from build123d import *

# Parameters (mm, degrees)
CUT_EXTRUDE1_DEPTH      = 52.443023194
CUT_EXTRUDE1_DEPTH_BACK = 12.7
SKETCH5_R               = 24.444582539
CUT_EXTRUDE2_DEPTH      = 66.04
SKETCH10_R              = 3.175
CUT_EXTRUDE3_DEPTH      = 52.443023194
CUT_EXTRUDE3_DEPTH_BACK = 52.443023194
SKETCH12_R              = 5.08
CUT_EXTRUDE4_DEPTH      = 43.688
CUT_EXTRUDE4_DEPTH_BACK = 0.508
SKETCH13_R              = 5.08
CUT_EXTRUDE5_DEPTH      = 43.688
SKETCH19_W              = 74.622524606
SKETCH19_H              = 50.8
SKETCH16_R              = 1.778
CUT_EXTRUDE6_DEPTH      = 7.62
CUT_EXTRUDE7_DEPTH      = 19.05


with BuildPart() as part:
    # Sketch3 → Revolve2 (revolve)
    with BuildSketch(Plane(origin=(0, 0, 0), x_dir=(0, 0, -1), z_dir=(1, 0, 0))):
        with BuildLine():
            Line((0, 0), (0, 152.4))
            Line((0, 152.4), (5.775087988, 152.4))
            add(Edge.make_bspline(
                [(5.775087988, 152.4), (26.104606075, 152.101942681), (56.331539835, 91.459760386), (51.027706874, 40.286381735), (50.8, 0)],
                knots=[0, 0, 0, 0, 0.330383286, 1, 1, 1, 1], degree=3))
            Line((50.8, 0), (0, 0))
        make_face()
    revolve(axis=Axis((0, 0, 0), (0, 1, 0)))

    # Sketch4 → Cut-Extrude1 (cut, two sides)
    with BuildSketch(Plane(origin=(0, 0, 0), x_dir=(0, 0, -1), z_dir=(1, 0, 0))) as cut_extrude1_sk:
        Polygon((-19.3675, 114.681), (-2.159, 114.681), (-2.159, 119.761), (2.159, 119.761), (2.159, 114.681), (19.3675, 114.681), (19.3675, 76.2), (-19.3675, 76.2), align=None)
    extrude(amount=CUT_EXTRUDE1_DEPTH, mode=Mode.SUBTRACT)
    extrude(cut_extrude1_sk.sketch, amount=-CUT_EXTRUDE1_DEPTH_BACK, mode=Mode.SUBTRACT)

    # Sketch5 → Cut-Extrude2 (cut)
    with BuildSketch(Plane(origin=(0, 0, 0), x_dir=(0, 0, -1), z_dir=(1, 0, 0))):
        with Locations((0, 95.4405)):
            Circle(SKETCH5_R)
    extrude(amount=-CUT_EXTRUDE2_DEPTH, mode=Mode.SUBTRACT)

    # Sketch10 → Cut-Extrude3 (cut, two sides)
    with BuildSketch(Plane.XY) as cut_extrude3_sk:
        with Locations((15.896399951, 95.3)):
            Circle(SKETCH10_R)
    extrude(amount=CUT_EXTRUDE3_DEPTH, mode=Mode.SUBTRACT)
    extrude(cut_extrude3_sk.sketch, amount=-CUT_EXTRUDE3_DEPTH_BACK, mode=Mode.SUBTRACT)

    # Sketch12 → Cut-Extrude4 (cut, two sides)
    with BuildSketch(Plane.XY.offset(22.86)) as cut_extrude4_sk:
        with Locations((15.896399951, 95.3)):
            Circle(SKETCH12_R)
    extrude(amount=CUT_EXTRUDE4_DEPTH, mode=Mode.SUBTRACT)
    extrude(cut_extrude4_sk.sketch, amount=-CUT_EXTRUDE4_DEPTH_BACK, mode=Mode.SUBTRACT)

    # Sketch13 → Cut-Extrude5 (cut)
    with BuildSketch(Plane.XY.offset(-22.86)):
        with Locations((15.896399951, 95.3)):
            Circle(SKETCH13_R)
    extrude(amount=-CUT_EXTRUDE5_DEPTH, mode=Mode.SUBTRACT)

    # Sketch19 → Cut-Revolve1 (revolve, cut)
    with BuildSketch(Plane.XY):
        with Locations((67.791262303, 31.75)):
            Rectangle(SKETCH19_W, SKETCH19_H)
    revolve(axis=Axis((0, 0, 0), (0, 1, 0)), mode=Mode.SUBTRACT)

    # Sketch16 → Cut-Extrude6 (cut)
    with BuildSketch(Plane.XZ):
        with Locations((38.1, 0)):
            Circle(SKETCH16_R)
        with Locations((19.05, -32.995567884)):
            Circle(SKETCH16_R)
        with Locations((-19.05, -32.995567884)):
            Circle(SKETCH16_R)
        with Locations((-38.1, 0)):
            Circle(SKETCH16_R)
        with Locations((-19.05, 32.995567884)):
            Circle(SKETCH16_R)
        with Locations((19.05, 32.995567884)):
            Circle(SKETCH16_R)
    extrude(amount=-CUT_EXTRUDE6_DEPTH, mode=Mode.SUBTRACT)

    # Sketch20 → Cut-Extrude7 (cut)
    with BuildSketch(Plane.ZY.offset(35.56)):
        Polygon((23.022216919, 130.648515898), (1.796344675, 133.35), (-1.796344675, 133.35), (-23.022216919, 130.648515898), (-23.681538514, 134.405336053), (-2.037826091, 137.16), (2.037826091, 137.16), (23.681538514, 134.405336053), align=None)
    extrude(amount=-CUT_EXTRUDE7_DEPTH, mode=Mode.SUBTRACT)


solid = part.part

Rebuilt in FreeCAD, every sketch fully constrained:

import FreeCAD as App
import Part
import Sketcher

V = App.Vector
Q = App.Units.Quantity


def add_polygon(sketch, points):
    """Adds a closed chain of lines whose ends are joined by coincident constraints."""
    first, n = sketch.GeometryCount, len(points)
    for a, b in zip(points, points[1:] + points[:1]):
        sketch.addGeometry(Part.LineSegment(App.Vector(*a, 0), App.Vector(*b, 0)), False)
    for i in range(n):
        sketch.addConstraint(Sketcher.Constraint("Coincident", first + i, 2, first + (i + 1) % n, 1))

doc = App.newDocument("Part")
body = doc.addObject("PartDesign::Body", "Body")

# Sketch on YZ plane
sketch1 = body.newObject("Sketcher::SketchObject", "Sketch")
sketch1.AttachmentSupport = (doc.getObject("YZ_Plane"), [""])
sketch1.MapMode = "FlatFace"
sketch1.addGeometry([
    Part.LineSegment(V(152.4, 0, 0), V(0, 0, 0)),
    Part.LineSegment(V(0, 0, 0), V(0, -50.8, 0)),
    Part.BSplineCurve([V(152.4, -5.775088, 0), V(152.101943, -26.104606, 0), V(91.45976, -56.33154, 0), V(40.286382, -51.027707, 0), V(0, -50.8, 0)], [4, 1, 4], [0, 0.330383286, 1], False, 3, [1, 1, 1, 1, 1], False),
    Part.LineSegment(V(152.4, -5.775088, 0), V(152.4, 0, 0)),
], False)
sketch1.addConstraint([
    Sketcher.Constraint("Block", 2),
    Sketcher.Constraint("Coincident", 0, 2, 1, 1),
    Sketcher.Constraint("Coincident", 1, 2, 2, 2),
    Sketcher.Constraint("Coincident", 2, 1, 3, 1),
    Sketcher.Constraint("Coincident", 3, 2, 0, 1),
    Sketcher.Constraint("Horizontal", 0),
    Sketcher.Constraint("Vertical", 1),
    Sketcher.Constraint("Vertical", 3),
    Sketcher.Constraint("PointOnObject", 3, 2, -1),
])
revolution = body.newObject("PartDesign::Revolution", "Revolution")
revolution.Profile = sketch1
revolution.ReferenceAxis = (sketch1, ["H_Axis"])
revolution.Angle = 360

# Sketch on YZ plane
sketch2 = body.newObject("Sketcher::SketchObject", "Sketch001")
sketch2.AttachmentSupport = (doc.getObject("YZ_Plane"), [""])
sketch2.MapMode = "FlatFace"
add_polygon(sketch2, [(114.7, 2.2), (114.7, 19.4), (76.2, 19.4), (76.2, -19.4), (114.7, -19.4), (114.7, -2.2), (119.8, -2.2), (119.8, 2.2)])  # lines 0-7
sketch2.addConstraint([
    Sketcher.Constraint("Vertical", 0),
    Sketcher.Constraint("Horizontal", 1),
    Sketcher.Constraint("Vertical", 2),
    Sketcher.Constraint("Horizontal", 3),
    Sketcher.Constraint("Vertical", 4),
    Sketcher.Constraint("Horizontal", 5),
    Sketcher.Constraint("Vertical", 6),
    Sketcher.Constraint("Horizontal", 7),
    Sketcher.Constraint("Symmetric", 0, 2, 3, 2, -1),
    Sketcher.Constraint("Equal", 0, 4),
    Sketcher.Constraint("DistanceX", 5, 1, 5, 2, Q("0.2 in")),
    Sketcher.Constraint("DistanceX", -1, 1, 1, 2, Q("3 in")),
    Sketcher.Constraint("DistanceY", 6, 1, 6, 2, Q("0.17 in")),
    Sketcher.Constraint("DistanceX", 1, 2, 1, 1, Q("1.515 in")),
    Sketcher.Constraint("DistanceY", 2, 2, 2, 1, Q("1.525 in")),
])
pocket1 = body.newObject("PartDesign::Pocket", "Pocket")
pocket1.Profile = sketch2
pocket1.Type = "TwoLengths"
pocket1.Length = 52.443023
pocket1.Length2 = Q("0.5 in")
pocket1.Reversed = True

# Sketch on YZ plane
sketch3 = body.newObject("Sketcher::SketchObject", "Sketch002")
sketch3.AttachmentSupport = (doc.getObject("YZ_Plane"), [""])
sketch3.MapMode = "FlatFace"
sketch3.addGeometry(Part.Circle(V(95, 0, 0), V(0, 0, 1), 24), False)
sketch3.addConstraint([
    Sketcher.Constraint("PointOnObject", 0, 3, -1),
    Sketcher.Constraint("Diameter", 0, Q("48.889165 mm")),
    Sketcher.Constraint("DistanceX", -1, 1, 0, 3, Q("3.7575 in")),
])
pocket2 = body.newObject("PartDesign::Pocket", "Pocket001")
pocket2.Profile = sketch3
pocket2.Length = Q("2.6 in")

# Sketch on XY plane
sketch4 = body.newObject("Sketcher::SketchObject", "Sketch003")
sketch4.AttachmentSupport = (doc.getObject("XY_Plane"), [""])
sketch4.MapMode = "FlatFace"
sketch4.addGeometry(Part.Circle(V(15.9, 95.3, 0), V(0, 0, 1), 3.2), False)
sketch4.addConstraint([
    Sketcher.Constraint("Diameter", 0, Q("0.25 in")),
    Sketcher.Constraint("DistanceX", -1, 1, 0, 3, Q("15.8964 mm")),
    Sketcher.Constraint("DistanceY", -1, 1, 0, 3, Q("95.3 mm")),
])
pocket3 = body.newObject("PartDesign::Pocket", "Pocket002")
pocket3.Profile = sketch4
pocket3.Type = "ThroughAll"
pocket3.Midplane = True

# Sketch on XY plane
sketch5 = body.newObject("Sketcher::SketchObject", "Sketch004")
sketch5.AttachmentSupport = (doc.getObject("XY_Plane"), [""])
sketch5.MapMode = "FlatFace"
sketch5.AttachmentOffset = App.Placement(V(0, 0, 0.9 * 25.4), App.Rotation())
sketch5.addGeometry(Part.Circle(V(16, 95, 0), V(0, 0, 1), 5), False)
sketch5.addConstraint([
    Sketcher.Constraint("Diameter", 0, Q("0.4 in")),
    Sketcher.Constraint("DistanceX", -1, 1, 0, 3, Q("15.8964 mm")),
    Sketcher.Constraint("DistanceY", -1, 1, 0, 3, Q("95.3 mm")),
])
pocket4 = body.newObject("PartDesign::Pocket", "Pocket003")
pocket4.Profile = sketch5
pocket4.Type = "TwoLengths"
pocket4.Length = Q("1.72 in")
pocket4.Length2 = Q("0.02 in")
pocket4.Reversed = True

# Sketch on XY plane
sketch6 = body.newObject("Sketcher::SketchObject", "Sketch005")
sketch6.AttachmentSupport = (doc.getObject("XY_Plane"), [""])
sketch6.MapMode = "FlatFace"
sketch6.AttachmentOffset = App.Placement(V(0, 0, -0.9 * 25.4), App.Rotation())
sketch6.addGeometry(Part.Circle(V(16, 95, 0), V(0, 0, 1), 5), False)
sketch6.addConstraint([
    Sketcher.Constraint("Diameter", 0, Q("0.4 in")),
    Sketcher.Constraint("DistanceX", -1, 1, 0, 3, Q("15.8964 mm")),
    Sketcher.Constraint("DistanceY", -1, 1, 0, 3, Q("95.3 mm")),
])
pocket5 = body.newObject("PartDesign::Pocket", "Pocket004")
pocket5.Profile = sketch6
pocket5.Length = Q("1.72 in")

# Sketch on XY plane
sketch7 = body.newObject("Sketcher::SketchObject", "Sketch006")
sketch7.AttachmentSupport = (doc.getObject("XY_Plane"), [""])
sketch7.MapMode = "FlatFace"
add_polygon(sketch7, [(30, 57), (30, 6), (105, 6), (105, 57)])  # lines 0-3
sketch7.addConstraint([
    Sketcher.Constraint("Vertical", 0),
    Sketcher.Constraint("Horizontal", 1),
    Sketcher.Constraint("Vertical", 2),
    Sketcher.Constraint("Horizontal", 3),
    Sketcher.Constraint("DistanceY", 0, 2, 0, 1, Q("2 in")),
    Sketcher.Constraint("DistanceX", -1, 1, 0, 2, Q("1.2 in")),
    Sketcher.Constraint("DistanceY", -1, 1, 0, 2, Q("0.25 in")),
    Sketcher.Constraint("DistanceX", 1, 1, 1, 2, Q("74.622525 mm")),
])
groove = body.newObject("PartDesign::Groove", "Groove")
groove.Profile = sketch7
groove.ReferenceAxis = (sketch7, ["V_Axis"])
groove.Angle = 360

# Sketch on XZ plane
sketch8 = body.newObject("Sketcher::SketchObject", "Sketch007")
sketch8.AttachmentSupport = (doc.getObject("XZ_Plane"), [""])
sketch8.MapMode = "FlatFace"
sketch8.addGeometry([
    Part.Circle(V(38.1, 0, 0), V(0, 0, 1), 1.8),  # 0
    Part.Circle(V(19.1, -33, 0), V(0, 0, 1), 1.8),  # 1
    Part.Circle(V(-19.1, -33, 0), V(0, 0, 1), 1.8),  # 2
    Part.Circle(V(-38.1, 0, 0), V(0, 0, 1), 1.8),  # 3
    Part.Circle(V(-19.1, 33, 0), V(0, 0, 1), 1.8),  # 4
    Part.Circle(V(19.1, 33, 0), V(0, 0, 1), 1.8),  # 5
], False)
sketch8.addConstraint([
    Sketcher.Constraint("Equal", 0, 1),
    Sketcher.Constraint("Equal", 1, 2),
    Sketcher.Constraint("Equal", 2, 3),
    Sketcher.Constraint("Equal", 3, 4),
    Sketcher.Constraint("Equal", 4, 5),
    Sketcher.Constraint("Symmetric", 0, 3, 3, 3, -1, 1),
    Sketcher.Constraint("Symmetric", 1, 3, 4, 3, -1, 1),
    Sketcher.Constraint("Symmetric", 2, 3, 5, 3, -1, 1),
    Sketcher.Constraint("Symmetric", 1, 3, 2, 3, -2),
    Sketcher.Constraint("PointOnObject", 0, 3, -1),
    Sketcher.Constraint("Diameter", 0, Q("0.14 in")),
    Sketcher.Constraint("DistanceX", 3, 3, 0, 3, Q("3 in")),
    Sketcher.Constraint("DistanceX", 2, 3, 1, 3, Q("1.5 in")),
    Sketcher.Constraint("DistanceY", 1, 3, -1, 1, Q("32.995568 mm")),
])
pocket6 = body.newObject("PartDesign::Pocket", "Pocket005")
pocket6.Profile = sketch8
pocket6.Length = Q("0.3 in")

# Sketch on YZ plane
sketch9 = body.newObject("Sketcher::SketchObject", "Sketch008")
sketch9.AttachmentSupport = (doc.getObject("YZ_Plane"), [""])
sketch9.MapMode = "FlatFace"
sketch9.AttachmentOffset = App.Placement(V(0, 0, -1.4 * 25.4), App.Rotation())
add_polygon(sketch9, [(133.3, 1.8), (130.6, 23), (134.4, 23.7), (137.2, 2), (137.2, -2), (134.4, -23.7), (130.6, -23), (133.3, -1.8)])  # lines 0-7
sketch9.addConstraint([
    Sketcher.Constraint("Vertical", 3),
    Sketcher.Constraint("Vertical", 7),
    Sketcher.Constraint("Symmetric", 1, 2, 4, 2, -1),
    Sketcher.Constraint("Symmetric", 0, 2, 5, 2, -1),
    Sketcher.Constraint("Parallel", 0, 2),
    Sketcher.Constraint("Parallel", 4, 6),
    Sketcher.Constraint("Equal", 2, 4),
    Sketcher.Constraint("DistanceX", -1, 1, 2, 2, Q("5.4 in")),
    Sketcher.Constraint("DistanceX", -1, 1, 6, 2, Q("5.25 in")),
    Sketcher.Constraint("DistanceY", 7, 1, 7, 2, Q("3.592689 mm")),
    Sketcher.Constraint("DistanceY", 3, 2, 3, 1, Q("4.075652 mm")),
    Sketcher.Constraint("DistanceY", -1, 1, 1, 2, Q("23.681539 mm")),
    Sketcher.Constraint("DistanceX", 0, 2, 1, 2, Q("3.75682 mm")),
    Sketcher.Constraint("DistanceY", 0, 2, 1, 2, Q("0.659322 mm")),
])
pocket7 = body.newObject("PartDesign::Pocket", "Pocket006")
pocket7.Profile = sketch9
pocket7.Length = Q("0.75 in")
pocket7.Reversed = True

doc.recompute()
